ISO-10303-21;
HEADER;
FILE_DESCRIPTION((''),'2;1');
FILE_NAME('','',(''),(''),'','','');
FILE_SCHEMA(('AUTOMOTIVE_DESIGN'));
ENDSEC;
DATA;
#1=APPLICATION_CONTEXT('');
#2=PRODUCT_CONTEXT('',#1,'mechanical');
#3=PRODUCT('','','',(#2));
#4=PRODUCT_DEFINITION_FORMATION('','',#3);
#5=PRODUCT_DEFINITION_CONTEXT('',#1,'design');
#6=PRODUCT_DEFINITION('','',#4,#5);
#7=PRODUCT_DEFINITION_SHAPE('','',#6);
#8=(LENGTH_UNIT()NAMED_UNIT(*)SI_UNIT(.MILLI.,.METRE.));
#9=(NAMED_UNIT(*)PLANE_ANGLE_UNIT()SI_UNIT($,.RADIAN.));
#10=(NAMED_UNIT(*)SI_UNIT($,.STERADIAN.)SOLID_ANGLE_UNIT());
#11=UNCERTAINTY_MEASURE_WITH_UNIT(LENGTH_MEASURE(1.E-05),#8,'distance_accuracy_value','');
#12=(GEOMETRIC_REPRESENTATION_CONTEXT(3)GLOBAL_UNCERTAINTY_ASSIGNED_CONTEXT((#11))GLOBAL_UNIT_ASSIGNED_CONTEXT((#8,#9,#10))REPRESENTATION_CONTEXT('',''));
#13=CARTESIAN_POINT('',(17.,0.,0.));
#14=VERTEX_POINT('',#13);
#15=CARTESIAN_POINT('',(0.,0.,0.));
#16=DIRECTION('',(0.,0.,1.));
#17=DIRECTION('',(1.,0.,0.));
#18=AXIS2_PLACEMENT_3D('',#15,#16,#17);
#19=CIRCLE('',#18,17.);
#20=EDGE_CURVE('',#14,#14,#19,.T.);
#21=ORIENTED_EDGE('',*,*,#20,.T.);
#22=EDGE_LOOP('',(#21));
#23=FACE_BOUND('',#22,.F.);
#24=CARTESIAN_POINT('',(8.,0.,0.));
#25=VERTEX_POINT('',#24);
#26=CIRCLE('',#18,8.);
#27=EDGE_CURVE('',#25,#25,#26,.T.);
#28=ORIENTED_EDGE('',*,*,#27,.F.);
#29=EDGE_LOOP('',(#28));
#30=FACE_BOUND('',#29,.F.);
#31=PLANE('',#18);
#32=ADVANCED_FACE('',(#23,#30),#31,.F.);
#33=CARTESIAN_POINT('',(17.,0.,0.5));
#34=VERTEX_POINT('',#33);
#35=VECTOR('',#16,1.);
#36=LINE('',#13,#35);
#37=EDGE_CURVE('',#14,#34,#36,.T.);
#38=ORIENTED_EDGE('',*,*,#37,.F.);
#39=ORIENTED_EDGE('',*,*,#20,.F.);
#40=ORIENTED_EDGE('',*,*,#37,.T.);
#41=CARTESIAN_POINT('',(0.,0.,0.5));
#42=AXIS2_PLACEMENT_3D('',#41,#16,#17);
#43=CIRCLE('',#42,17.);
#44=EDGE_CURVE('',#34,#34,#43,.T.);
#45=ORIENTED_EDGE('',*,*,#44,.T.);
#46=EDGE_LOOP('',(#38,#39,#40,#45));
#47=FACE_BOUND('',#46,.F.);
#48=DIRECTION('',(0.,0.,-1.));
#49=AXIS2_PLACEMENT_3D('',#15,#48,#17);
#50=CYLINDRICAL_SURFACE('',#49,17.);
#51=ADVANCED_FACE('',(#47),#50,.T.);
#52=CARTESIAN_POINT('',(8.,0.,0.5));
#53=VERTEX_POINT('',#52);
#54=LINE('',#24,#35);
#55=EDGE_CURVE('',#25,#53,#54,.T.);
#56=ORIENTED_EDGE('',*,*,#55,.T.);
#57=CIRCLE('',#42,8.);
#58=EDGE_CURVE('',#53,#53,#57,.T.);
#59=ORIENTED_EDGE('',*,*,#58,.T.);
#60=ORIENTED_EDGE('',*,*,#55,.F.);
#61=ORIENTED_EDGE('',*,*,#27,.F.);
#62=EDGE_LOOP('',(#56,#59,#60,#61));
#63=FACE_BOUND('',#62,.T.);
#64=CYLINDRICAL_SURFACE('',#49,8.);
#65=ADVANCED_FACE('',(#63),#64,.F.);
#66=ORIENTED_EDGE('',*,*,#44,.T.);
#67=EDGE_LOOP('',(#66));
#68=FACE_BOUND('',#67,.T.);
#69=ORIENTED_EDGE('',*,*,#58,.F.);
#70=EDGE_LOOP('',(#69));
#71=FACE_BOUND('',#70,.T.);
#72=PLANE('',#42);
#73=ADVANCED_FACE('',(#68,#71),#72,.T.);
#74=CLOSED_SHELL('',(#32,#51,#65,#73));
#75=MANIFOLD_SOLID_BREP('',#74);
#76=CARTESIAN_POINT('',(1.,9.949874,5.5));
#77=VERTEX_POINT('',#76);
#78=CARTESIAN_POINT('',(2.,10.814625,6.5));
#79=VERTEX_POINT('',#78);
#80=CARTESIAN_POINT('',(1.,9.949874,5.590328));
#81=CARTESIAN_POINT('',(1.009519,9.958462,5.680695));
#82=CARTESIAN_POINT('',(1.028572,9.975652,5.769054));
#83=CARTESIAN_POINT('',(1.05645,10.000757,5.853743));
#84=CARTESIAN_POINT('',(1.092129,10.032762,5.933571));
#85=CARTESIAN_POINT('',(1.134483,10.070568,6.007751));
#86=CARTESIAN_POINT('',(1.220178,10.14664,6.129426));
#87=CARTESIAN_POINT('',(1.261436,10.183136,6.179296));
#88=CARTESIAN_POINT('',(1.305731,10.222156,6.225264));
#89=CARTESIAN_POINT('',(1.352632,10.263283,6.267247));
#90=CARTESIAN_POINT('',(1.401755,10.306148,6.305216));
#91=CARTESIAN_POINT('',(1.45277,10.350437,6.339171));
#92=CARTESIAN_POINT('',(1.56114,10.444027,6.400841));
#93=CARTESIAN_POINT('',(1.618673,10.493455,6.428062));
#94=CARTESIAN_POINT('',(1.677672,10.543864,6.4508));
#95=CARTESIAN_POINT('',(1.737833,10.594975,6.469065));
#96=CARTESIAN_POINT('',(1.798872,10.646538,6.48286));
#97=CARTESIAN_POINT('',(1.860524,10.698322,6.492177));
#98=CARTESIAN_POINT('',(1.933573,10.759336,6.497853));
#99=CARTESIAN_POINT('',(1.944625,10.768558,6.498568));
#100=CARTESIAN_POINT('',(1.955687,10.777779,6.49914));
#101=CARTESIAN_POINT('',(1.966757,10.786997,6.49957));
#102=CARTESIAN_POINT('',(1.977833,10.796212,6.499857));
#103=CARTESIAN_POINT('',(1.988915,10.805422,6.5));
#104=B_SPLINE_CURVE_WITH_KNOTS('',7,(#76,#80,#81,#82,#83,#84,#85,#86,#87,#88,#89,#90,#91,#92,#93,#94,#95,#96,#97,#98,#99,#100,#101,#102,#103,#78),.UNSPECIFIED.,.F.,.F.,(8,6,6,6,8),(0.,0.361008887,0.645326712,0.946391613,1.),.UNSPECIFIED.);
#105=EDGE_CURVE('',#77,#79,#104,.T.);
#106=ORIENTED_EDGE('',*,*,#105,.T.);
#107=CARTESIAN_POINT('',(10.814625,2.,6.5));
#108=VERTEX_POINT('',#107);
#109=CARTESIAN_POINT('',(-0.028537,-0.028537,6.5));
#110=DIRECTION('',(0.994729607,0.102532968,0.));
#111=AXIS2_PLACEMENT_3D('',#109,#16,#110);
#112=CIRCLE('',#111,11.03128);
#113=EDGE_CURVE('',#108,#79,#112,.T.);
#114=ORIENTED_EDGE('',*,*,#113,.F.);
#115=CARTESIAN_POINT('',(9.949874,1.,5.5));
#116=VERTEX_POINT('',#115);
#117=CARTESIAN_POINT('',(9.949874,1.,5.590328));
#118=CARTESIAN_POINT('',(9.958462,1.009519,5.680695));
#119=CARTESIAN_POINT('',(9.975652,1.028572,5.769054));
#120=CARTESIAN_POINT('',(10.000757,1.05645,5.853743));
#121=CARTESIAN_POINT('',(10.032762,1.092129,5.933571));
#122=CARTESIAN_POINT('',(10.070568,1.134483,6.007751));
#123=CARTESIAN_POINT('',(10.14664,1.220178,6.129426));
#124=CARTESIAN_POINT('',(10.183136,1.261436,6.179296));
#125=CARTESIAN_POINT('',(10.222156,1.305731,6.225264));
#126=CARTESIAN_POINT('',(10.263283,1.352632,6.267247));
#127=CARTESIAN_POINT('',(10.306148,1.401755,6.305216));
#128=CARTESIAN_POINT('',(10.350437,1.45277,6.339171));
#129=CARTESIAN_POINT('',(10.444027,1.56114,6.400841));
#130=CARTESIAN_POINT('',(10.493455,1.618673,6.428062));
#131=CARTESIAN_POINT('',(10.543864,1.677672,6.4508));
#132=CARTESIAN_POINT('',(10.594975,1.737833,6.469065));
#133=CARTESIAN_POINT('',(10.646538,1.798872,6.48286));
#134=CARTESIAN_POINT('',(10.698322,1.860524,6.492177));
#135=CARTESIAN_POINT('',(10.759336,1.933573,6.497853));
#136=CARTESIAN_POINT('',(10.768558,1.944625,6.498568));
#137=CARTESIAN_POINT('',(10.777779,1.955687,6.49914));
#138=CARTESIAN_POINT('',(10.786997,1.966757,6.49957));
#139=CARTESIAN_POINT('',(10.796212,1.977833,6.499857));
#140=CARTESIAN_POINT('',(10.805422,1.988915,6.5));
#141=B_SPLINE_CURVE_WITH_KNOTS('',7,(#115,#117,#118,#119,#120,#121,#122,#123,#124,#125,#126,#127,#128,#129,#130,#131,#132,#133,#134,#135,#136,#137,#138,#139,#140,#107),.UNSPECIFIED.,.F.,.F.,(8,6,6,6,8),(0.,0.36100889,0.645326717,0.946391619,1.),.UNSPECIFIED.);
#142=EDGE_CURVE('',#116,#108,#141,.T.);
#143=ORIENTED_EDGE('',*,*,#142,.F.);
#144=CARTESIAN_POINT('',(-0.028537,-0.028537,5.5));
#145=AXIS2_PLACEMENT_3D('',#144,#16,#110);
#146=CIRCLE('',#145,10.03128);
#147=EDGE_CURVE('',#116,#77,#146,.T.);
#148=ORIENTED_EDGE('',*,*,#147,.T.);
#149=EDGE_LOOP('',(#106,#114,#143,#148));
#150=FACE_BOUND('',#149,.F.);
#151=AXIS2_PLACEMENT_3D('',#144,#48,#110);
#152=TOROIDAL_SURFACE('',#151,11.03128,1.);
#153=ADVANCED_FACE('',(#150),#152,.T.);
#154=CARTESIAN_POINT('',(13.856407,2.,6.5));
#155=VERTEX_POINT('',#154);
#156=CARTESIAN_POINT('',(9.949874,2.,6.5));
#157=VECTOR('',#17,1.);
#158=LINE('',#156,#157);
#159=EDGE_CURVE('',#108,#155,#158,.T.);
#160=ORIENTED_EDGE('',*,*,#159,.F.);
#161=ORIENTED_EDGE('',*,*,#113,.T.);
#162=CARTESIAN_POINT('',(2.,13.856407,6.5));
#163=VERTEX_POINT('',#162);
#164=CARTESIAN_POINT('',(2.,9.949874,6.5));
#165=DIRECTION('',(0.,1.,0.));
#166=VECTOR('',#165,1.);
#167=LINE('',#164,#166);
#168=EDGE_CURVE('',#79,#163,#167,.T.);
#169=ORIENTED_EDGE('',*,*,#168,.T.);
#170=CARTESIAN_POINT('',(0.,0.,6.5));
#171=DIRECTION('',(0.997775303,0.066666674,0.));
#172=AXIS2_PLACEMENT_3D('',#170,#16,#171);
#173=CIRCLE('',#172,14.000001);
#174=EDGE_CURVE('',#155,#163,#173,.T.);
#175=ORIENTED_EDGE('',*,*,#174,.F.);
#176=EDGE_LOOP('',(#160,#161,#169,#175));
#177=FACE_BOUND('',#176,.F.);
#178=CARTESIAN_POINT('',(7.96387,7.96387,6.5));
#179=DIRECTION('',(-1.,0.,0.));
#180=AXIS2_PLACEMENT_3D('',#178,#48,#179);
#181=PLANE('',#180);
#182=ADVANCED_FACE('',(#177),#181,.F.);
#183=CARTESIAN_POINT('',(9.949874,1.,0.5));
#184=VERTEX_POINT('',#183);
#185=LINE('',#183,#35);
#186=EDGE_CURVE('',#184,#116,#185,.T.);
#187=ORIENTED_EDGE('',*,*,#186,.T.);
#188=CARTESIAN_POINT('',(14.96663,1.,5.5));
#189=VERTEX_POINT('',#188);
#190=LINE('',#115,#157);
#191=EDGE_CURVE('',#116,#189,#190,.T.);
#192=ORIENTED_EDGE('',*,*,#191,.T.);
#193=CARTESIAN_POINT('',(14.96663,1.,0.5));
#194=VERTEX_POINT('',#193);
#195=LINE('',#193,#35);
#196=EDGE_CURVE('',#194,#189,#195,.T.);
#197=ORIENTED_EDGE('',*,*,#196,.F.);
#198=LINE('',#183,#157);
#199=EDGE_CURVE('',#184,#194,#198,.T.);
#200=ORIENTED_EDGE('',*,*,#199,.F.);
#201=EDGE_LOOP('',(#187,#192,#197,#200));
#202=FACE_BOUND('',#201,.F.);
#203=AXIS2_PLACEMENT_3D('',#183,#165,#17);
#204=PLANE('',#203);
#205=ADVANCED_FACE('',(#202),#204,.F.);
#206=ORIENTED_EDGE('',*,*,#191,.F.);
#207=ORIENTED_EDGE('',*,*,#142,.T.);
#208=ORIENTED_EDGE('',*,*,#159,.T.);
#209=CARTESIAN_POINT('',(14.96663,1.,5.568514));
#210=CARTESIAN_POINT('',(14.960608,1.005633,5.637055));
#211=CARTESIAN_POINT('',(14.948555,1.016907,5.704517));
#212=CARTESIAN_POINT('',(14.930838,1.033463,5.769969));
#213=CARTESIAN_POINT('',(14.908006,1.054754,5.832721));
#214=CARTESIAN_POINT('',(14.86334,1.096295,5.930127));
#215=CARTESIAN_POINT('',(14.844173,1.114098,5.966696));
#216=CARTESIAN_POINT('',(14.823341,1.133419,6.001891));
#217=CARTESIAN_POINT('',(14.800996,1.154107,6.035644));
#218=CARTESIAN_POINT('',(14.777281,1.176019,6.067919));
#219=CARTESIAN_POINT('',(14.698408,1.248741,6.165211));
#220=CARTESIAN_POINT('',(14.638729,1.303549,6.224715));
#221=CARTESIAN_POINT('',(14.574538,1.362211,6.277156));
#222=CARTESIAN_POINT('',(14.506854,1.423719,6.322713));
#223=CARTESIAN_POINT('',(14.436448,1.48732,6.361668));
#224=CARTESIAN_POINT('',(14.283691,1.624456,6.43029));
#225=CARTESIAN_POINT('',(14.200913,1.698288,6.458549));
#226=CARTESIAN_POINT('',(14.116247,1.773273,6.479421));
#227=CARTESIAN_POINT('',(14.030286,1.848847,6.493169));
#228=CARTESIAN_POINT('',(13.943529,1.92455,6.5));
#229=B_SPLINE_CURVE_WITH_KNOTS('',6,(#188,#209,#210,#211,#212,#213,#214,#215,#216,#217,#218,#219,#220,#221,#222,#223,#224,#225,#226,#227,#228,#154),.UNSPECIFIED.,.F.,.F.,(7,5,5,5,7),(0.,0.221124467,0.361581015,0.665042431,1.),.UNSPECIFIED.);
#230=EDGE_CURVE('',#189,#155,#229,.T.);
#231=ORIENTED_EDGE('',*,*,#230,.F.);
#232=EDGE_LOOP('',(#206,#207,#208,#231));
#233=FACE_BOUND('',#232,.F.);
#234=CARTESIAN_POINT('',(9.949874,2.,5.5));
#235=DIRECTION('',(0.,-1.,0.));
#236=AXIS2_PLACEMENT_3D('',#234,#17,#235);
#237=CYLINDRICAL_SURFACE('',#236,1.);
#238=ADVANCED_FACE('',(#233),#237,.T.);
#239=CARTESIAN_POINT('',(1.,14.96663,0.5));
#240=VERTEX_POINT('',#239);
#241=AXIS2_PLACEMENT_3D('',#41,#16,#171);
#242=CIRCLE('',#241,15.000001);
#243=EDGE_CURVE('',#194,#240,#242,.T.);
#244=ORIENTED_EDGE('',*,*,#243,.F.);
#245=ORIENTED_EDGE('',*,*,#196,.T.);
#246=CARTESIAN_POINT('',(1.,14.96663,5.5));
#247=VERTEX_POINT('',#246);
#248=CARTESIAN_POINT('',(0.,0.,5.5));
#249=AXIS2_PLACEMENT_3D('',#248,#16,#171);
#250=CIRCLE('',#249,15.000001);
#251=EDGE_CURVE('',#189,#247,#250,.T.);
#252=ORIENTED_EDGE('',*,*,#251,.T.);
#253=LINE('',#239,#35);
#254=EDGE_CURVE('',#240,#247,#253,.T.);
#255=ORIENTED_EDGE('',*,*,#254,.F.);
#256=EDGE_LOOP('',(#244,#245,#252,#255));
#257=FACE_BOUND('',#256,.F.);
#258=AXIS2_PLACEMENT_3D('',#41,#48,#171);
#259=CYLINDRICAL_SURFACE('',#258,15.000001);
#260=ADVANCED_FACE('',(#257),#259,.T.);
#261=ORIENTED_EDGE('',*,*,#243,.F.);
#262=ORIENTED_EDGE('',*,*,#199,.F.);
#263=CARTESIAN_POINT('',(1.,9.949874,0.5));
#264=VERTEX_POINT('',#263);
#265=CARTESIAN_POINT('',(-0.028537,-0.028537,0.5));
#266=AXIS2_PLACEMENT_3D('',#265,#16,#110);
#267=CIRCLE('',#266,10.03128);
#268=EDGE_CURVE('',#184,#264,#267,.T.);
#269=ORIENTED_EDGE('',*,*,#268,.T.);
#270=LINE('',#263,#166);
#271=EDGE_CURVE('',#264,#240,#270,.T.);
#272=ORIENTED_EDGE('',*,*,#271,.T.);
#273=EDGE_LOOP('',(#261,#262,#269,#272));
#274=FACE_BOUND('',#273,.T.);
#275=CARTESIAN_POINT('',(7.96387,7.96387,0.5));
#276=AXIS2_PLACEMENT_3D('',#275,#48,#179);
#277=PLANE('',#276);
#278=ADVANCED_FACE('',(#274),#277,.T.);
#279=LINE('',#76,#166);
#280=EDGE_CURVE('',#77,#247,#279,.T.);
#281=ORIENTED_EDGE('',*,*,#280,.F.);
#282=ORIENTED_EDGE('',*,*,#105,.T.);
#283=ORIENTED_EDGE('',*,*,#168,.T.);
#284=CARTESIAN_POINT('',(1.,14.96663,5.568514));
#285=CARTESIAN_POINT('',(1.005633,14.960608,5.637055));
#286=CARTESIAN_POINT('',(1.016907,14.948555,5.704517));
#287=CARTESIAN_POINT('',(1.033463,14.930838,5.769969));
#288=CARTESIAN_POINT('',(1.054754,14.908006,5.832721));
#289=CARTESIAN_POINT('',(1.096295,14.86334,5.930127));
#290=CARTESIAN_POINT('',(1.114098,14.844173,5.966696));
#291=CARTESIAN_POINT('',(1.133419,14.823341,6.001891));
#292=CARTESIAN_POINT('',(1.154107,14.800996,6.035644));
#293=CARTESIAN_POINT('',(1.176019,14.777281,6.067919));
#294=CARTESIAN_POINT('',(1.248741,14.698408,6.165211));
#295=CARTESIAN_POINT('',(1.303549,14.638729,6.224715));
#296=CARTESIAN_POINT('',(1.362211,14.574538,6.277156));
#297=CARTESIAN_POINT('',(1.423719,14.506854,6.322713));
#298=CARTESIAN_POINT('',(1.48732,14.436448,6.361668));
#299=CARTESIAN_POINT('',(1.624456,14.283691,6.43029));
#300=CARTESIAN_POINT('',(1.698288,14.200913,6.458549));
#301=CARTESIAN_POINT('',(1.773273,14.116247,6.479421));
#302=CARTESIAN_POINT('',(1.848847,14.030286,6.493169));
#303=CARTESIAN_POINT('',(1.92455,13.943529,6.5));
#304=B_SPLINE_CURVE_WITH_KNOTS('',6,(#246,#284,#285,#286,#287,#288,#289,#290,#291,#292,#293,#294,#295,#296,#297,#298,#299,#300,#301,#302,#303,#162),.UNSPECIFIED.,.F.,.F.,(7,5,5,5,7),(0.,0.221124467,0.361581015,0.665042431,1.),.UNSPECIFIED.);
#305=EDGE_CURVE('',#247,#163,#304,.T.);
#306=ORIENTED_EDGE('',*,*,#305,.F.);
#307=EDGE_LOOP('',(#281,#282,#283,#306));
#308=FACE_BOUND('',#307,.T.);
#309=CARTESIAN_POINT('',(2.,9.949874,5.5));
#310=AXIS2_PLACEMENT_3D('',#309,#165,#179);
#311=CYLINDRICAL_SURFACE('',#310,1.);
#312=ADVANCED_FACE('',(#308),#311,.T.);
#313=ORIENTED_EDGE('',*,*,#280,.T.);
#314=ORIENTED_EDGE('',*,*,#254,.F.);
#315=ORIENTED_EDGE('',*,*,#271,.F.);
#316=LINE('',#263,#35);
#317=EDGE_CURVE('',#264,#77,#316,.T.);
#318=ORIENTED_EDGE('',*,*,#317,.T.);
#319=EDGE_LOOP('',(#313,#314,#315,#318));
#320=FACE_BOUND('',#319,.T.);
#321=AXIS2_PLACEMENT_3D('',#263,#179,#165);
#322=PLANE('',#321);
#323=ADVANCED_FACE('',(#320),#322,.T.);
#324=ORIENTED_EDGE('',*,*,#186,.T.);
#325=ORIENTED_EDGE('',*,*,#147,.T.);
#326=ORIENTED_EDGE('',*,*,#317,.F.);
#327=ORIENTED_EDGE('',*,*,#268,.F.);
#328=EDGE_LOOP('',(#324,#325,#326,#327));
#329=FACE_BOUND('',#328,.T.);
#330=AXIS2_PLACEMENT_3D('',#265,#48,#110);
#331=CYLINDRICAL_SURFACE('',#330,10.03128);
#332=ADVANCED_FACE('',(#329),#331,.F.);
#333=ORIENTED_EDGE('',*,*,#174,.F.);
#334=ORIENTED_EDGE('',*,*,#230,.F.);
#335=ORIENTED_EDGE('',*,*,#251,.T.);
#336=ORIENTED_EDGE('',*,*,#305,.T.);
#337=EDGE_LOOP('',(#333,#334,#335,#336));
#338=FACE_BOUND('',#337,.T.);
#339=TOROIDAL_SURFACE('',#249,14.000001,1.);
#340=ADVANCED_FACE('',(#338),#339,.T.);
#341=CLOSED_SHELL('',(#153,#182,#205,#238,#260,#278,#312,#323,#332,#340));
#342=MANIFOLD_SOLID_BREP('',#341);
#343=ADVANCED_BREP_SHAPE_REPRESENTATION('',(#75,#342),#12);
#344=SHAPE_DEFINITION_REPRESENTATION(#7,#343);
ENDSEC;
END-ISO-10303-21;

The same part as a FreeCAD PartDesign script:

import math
import FreeCAD as App
import Part
import Sketcher
from FreeCAD import Vector
Q = App.Units.Quantity


def edges_at(feature, points):
    """Names of the edges that pass closest to the given points."""
    edges = feature.Shape.Edges
    near = lambda p: min(range(len(edges)), key=lambda i: edges[i].distToShape(Part.Vertex(*p))[0])
    return sorted({f"Edge{near(p) + 1}" for p in points})

doc = App.newDocument("Part")
body = doc.addObject("PartDesign::Body", "Body")

# Sketch on XY plane
sketch1 = body.newObject("Sketcher::SketchObject", "Sketch")
sketch1.AttachmentSupport = (doc.getObject("XY_Plane"), [""])
sketch1.MapMode = "FlatFace"
sketch1.addGeometry(Part.Circle(Vector(0, 0, 0), Vector(0, 0, 1), 8), False)
sketch1.addConstraint([
    Sketcher.Constraint("Coincident", 0, 3, -1, 1),
    Sketcher.Constraint("Diameter", 0, Q("16 mm")),
])
pad1 = body.newObject("PartDesign::Pad", "Pad")
pad1.Profile = sketch1
pad1.Length = 0.5
body2 = doc.addObject("PartDesign::Body", "Body001")

# Sketch on XY plane
sketch2 = body2.newObject("Sketcher::SketchObject", "Sketch001")
sketch2.AttachmentSupport = (doc.getObject("XY_Plane001"), [""])
sketch2.MapMode = "FlatFace"
sketch2.addGeometry(Part.Circle(Vector(0, 0, 0), Vector(0, 0, 1), 17), False)
sketch2.addConstraint([
    Sketcher.Constraint("Coincident", 0, 3, -1, 1),
    Sketcher.Constraint("Diameter", 0, Q("34 mm")),
])
pad2 = body2.newObject("PartDesign::Pad", "Pad001")
pad2.Profile = sketch2
pad2.Length = 0.5
doc.recompute()

boolean = body2.newObject("PartDesign::Boolean", "Boolean")
boolean.Type = "Cut"
boolean.addObjects([body])
body3 = doc.addObject("PartDesign::Body", "Body002")

# Sketch on XY plane
sketch3 = body3.newObject("Sketcher::SketchObject", "Sketch002")
sketch3.AttachmentSupport = (doc.getObject("XY_Plane002"), [""])
sketch3.MapMode = "FlatFace"
sketch3.AttachmentOffset = App.Placement(Vector(0, 0, 0.5), App.Rotation())
sketch3.addGeometry([
    Part.LineSegment(Vector(1, 15, 0), Vector(1, 10, 0)),
    Part.ArcOfCircle(Part.Circle(Vector(0, 0, 0), Vector(0, 0, 1), 10), math.radians(6), math.radians(84)),
    Part.LineSegment(Vector(10, 1, 0), Vector(15, 1, 0)),
    Part.ArcOfCircle(Part.Circle(Vector(0, 0, 0), Vector(0, 0, 1), 15), math.radians(4), math.radians(86)),
], False)
sketch3.addConstraint([
    Sketcher.Constraint("Coincident", 0, 2, 1, 2),
    Sketcher.Constraint("Coincident", 1, 1, 2, 1),
    Sketcher.Constraint("Coincident", 2, 2, 3, 1),
    Sketcher.Constraint("Coincident", 3, 2, 0, 1),
    Sketcher.Constraint("Vertical", 0),
    Sketcher.Constraint("Horizontal", 2),
    Sketcher.Constraint("Coincident", 3, 3, -1, 1),
    Sketcher.Constraint("Equal", 2, 0),
    Sketcher.Constraint("Radius", 3, Q("15.000001 mm")),
    Sketcher.Constraint("DistanceX", -1, 1, 0, 2, Q("1 mm")),
    Sketcher.Constraint("DistanceY", -1, 1, 1, 1, Q("1 mm")),
    Sketcher.Constraint("Radius", 1, Q("10.03128 mm")),
    Sketcher.Constraint("DistanceX", 2, 1, 2, 2, Q("5.016756 mm")),
])
pad3 = body3.newObject("PartDesign::Pad", "Pad002")
pad3.Profile = sketch3
pad3.Length = 6
doc.recompute()

fillet = body3.newObject("PartDesign::Fillet", "Fillet")
fillet.Base = (pad3, edges_at(pad3, [
    (7.065, 7.065, 6.5),
    (12.458, 1, 6.5),
    (10.607, 10.607, 6.5),
    (1, 12.458, 6.5),
]))
fillet.Radius = 1

doc.recompute()
